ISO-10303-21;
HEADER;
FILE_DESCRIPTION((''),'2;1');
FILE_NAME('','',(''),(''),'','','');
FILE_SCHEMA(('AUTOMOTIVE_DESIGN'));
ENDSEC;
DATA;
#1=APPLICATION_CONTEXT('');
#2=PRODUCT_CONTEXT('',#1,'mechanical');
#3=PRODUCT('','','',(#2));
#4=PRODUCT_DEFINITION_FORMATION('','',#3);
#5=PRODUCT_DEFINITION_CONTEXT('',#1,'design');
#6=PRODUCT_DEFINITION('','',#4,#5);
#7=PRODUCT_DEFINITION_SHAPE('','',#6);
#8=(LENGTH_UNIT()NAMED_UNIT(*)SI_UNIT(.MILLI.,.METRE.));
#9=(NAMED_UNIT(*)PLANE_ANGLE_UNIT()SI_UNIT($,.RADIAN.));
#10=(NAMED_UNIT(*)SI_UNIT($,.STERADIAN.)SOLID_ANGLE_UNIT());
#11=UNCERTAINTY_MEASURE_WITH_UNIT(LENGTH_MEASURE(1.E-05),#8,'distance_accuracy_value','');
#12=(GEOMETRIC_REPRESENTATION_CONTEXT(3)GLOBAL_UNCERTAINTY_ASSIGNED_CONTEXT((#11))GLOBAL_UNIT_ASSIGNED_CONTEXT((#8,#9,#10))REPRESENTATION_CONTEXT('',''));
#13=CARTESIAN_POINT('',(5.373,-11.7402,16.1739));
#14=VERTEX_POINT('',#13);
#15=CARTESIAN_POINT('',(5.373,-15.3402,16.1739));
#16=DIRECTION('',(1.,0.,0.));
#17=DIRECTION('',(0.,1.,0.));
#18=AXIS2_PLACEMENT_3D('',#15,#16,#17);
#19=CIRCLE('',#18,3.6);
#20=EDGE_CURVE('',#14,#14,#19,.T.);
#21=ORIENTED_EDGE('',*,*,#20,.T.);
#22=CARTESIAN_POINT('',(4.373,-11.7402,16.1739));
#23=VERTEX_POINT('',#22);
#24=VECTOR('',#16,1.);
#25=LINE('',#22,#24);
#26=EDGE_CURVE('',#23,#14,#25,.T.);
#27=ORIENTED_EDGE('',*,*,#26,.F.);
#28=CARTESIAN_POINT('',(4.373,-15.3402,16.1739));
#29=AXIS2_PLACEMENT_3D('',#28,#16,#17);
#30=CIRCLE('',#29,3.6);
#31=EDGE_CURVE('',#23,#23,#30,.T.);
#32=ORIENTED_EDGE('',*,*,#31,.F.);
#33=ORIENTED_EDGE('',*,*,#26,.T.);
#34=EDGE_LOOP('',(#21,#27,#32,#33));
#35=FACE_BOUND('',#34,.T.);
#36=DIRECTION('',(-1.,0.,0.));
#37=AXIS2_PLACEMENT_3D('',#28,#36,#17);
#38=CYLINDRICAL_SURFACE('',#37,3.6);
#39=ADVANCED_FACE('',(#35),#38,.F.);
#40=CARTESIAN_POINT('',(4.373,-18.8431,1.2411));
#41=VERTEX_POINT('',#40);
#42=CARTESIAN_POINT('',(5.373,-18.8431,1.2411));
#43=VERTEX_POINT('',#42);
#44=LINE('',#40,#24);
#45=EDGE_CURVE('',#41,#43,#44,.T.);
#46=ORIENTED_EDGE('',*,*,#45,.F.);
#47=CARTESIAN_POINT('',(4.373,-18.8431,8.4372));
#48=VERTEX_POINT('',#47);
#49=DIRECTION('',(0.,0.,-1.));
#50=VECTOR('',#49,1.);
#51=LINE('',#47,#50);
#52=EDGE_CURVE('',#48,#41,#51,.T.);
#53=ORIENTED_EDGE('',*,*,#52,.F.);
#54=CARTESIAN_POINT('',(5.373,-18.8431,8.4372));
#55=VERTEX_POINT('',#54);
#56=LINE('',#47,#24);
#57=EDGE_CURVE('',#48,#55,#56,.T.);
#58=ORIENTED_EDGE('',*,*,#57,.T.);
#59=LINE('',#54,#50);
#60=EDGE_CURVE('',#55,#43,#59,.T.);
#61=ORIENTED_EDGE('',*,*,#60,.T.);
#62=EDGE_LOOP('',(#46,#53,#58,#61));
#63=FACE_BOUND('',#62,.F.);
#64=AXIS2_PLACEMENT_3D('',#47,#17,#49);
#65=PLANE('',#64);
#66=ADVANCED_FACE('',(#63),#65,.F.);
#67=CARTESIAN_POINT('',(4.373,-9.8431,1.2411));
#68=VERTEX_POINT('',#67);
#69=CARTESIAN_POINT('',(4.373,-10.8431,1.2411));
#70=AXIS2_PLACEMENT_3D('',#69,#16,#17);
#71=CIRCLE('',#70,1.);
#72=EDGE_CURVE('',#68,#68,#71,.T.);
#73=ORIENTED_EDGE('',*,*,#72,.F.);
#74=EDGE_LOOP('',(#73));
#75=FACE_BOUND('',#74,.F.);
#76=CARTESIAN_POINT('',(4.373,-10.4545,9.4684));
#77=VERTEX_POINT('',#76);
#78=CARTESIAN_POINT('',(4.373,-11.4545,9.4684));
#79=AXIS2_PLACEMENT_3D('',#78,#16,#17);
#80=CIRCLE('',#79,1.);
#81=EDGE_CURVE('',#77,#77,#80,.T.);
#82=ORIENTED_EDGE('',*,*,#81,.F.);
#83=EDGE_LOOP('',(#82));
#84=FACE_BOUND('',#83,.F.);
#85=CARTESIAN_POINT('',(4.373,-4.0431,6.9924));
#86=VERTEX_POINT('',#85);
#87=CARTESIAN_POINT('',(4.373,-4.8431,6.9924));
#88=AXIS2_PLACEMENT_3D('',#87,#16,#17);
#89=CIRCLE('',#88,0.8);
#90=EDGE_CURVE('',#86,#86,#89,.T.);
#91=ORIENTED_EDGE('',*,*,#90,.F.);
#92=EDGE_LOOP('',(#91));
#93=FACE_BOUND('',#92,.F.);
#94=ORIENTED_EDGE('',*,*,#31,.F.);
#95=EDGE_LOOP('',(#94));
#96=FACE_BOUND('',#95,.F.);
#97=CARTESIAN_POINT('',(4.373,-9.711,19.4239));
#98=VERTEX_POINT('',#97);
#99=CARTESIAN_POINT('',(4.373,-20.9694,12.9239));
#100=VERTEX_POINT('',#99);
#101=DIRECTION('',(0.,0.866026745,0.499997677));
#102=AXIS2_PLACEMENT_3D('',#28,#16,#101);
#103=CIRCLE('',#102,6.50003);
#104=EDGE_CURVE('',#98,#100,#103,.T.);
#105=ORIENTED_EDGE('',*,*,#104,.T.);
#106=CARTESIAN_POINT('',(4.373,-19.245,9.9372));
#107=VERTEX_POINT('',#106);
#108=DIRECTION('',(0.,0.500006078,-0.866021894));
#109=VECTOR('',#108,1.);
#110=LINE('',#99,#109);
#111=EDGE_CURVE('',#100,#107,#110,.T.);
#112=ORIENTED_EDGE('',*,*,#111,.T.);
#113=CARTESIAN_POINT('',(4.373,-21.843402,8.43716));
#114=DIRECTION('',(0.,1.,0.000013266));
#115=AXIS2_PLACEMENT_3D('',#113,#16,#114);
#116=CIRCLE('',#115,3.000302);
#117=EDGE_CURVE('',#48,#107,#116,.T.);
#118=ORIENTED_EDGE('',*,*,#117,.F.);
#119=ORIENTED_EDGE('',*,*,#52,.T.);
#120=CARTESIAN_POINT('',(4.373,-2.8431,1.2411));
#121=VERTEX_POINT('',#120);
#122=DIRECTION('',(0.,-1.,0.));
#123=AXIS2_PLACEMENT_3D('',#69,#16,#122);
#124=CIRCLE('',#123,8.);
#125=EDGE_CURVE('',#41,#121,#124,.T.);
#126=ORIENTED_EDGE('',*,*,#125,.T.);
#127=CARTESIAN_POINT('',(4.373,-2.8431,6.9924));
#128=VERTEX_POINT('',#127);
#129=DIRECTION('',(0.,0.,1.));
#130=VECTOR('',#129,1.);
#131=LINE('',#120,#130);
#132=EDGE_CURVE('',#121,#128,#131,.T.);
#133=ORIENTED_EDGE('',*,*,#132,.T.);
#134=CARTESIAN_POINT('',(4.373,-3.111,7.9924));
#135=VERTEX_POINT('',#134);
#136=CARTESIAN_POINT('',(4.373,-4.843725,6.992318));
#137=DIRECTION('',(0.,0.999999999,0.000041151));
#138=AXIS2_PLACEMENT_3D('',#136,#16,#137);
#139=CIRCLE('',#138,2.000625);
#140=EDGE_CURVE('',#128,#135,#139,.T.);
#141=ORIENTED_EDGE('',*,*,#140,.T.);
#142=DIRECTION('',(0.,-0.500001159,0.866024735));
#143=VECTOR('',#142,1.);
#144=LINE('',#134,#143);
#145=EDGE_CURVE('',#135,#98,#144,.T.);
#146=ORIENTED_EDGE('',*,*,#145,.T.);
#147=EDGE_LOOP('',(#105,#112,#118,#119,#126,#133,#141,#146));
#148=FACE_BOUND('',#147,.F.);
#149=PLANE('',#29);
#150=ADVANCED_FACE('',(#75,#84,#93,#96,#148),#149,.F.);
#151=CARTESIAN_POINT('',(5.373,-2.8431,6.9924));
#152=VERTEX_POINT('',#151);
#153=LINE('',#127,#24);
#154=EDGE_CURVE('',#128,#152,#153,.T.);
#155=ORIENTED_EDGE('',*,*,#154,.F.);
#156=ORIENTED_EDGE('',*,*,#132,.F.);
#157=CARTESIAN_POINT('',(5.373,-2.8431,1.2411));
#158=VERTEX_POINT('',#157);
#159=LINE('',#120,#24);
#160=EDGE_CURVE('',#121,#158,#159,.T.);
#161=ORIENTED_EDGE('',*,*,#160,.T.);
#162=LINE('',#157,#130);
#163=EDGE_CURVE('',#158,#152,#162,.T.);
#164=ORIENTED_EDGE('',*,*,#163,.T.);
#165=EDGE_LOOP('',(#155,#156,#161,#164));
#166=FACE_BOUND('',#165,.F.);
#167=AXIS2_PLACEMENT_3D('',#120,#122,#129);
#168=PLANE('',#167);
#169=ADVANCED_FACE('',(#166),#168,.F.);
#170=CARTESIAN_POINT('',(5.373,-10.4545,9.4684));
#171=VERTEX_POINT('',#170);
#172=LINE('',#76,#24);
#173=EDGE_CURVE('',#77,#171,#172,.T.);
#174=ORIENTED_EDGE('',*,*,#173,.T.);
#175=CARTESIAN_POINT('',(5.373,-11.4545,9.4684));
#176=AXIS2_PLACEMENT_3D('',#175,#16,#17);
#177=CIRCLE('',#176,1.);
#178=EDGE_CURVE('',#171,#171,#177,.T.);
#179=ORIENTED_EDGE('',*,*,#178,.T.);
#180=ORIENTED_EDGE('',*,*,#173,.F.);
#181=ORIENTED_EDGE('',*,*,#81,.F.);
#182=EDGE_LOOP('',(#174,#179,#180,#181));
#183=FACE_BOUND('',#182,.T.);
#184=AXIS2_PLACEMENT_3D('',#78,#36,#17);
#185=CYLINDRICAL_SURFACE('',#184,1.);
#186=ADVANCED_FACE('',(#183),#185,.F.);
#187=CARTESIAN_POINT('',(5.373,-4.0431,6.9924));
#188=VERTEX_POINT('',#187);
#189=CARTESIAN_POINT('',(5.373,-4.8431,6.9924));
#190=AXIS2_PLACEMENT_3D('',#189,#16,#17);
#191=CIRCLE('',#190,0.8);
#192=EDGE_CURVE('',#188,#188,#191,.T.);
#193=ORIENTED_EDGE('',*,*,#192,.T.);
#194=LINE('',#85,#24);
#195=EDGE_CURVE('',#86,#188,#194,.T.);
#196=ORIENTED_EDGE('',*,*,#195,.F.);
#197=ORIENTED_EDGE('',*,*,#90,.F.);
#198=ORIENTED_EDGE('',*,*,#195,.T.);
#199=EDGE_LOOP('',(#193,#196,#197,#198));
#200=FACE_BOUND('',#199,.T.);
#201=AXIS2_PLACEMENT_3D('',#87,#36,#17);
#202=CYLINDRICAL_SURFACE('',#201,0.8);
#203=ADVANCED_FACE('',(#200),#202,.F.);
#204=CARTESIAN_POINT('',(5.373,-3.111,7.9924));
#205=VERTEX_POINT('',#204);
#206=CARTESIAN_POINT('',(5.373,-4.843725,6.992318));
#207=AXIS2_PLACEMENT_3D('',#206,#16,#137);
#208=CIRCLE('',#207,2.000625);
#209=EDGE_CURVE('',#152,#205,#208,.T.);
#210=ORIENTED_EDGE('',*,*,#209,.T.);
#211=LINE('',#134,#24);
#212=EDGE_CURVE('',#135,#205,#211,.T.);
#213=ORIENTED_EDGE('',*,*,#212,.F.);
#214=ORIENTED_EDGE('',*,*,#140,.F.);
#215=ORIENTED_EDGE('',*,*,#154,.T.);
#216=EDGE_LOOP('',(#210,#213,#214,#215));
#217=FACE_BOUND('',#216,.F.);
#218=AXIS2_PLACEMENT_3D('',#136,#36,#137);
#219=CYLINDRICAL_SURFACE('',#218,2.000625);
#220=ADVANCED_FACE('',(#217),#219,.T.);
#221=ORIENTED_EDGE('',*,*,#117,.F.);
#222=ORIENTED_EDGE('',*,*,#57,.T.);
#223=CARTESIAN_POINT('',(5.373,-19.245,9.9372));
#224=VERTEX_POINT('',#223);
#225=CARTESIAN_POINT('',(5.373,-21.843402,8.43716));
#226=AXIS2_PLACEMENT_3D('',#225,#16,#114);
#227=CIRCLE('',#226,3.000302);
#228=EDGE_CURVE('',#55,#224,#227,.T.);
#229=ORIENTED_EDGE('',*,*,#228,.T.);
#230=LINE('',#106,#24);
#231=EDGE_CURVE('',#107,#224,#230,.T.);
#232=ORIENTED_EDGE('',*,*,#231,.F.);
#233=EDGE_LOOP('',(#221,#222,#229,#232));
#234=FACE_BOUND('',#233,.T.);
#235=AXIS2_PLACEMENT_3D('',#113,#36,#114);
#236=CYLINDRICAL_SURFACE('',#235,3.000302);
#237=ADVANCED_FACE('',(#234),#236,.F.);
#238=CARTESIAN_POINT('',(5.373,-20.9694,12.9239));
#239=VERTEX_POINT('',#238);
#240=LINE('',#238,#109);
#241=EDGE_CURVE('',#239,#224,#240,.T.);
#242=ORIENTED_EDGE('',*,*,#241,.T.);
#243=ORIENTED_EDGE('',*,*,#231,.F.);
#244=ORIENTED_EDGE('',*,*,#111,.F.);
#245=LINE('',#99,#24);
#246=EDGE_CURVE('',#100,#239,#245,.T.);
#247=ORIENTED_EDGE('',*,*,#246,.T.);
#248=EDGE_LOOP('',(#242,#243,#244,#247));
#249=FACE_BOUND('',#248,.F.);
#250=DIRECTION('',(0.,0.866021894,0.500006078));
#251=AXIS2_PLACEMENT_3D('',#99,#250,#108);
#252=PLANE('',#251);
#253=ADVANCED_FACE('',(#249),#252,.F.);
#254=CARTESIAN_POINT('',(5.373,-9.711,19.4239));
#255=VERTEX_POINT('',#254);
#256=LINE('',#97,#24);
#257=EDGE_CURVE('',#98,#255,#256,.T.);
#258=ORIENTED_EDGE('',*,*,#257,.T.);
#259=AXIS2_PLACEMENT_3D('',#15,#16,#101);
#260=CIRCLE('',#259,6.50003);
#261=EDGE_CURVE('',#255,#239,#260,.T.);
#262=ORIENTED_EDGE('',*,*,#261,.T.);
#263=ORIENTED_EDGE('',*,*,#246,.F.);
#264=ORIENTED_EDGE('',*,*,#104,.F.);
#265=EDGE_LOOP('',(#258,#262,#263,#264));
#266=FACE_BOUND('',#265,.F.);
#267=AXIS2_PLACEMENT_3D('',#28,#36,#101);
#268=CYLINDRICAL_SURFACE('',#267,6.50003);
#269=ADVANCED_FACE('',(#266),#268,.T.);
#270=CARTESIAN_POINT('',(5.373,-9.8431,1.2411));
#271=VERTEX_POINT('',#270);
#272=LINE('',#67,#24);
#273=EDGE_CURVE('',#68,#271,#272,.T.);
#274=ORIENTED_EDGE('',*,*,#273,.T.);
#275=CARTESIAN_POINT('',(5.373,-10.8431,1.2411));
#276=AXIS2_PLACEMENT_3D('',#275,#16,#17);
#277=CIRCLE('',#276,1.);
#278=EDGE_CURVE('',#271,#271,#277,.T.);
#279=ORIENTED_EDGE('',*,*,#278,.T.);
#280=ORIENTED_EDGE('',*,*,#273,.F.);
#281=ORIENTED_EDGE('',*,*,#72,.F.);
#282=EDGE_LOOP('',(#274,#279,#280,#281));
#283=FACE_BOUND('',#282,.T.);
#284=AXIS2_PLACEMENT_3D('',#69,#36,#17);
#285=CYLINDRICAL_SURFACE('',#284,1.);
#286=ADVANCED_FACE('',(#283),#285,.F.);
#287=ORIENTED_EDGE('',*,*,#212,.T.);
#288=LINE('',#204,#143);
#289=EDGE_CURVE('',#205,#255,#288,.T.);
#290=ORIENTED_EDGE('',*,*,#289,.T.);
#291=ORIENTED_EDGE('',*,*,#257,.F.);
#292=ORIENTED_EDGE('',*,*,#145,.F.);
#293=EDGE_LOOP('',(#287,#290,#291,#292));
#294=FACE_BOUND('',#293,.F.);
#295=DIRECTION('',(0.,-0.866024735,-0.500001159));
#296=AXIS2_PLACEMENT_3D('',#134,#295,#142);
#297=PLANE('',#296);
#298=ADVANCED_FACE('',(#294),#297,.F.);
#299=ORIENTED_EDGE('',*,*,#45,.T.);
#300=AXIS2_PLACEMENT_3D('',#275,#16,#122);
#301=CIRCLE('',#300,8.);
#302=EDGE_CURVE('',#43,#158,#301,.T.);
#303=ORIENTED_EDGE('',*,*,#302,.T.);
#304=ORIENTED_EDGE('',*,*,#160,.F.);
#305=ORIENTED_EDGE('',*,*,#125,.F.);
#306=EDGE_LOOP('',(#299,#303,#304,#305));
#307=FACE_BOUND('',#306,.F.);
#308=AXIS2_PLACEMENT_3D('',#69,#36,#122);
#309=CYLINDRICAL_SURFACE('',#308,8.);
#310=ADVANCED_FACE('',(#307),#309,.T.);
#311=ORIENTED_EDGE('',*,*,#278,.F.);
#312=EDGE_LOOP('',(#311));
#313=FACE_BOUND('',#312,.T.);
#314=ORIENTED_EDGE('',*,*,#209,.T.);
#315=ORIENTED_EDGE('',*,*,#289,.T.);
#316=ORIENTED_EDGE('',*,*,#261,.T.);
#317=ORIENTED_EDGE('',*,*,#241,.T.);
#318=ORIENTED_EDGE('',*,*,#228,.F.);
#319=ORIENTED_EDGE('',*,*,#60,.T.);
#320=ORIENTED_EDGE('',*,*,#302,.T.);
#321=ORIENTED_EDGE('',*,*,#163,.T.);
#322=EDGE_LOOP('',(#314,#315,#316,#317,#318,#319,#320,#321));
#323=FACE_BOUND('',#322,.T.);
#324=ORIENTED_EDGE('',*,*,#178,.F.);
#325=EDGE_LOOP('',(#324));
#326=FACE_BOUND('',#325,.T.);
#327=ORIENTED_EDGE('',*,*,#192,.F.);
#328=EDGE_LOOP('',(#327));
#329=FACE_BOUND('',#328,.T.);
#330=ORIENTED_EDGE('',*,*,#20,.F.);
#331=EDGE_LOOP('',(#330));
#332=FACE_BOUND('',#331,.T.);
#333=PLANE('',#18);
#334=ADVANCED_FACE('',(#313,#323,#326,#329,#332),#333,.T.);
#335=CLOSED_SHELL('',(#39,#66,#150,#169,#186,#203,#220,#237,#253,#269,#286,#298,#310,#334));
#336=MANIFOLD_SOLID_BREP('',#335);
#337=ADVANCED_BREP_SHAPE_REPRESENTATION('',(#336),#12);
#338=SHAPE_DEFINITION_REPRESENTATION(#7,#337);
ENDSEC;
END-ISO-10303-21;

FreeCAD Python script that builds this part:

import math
import FreeCAD as App
import Part
import Sketcher

V = App.Vector
Q = App.Units.Quantity

doc = App.newDocument("Part")
body = doc.addObject("PartDesign::Body", "Body")

# Sketch on YZ plane
sketch1 = doc.addObject("Sketcher::SketchObject", "Sketch")
body.addObject(sketch1)
sketch1.AttachmentSupport = (doc.YZ_Plane, [""])
sketch1.MapMode = "FlatFace"
sketch1.AttachmentOffset = App.Placement(V(0, 0, 4.373), App.Rotation())
sketch1.addGeometry([
    Part.LineSegment(V(-18.8, 8.4, 0), V(-18.8, 1.2, 0)),  # 0
    Part.ArcOfCircle(Part.Circle(V(-10.8, 1.2, 0), V(0, 0, 1), 8), math.radians(180), math.radians(360)),  # 1
    Part.LineSegment(V(-2.8, 1.2, 0), V(-2.8, 7, 0)),  # 2
    Part.ArcOfCircle(Part.Circle(V(-4.8, 7, 0), V(0, 0, 1), 2), math.radians(0), math.radians(30)),  # 3
    Part.LineSegment(V(-3.1, 8, 0), V(-9.7, 19.4, 0)),  # 4
    Part.ArcOfCircle(Part.Circle(V(-15.3, 16.2, 0), V(0, 0, 1), 6.5), math.radians(30), math.radians(210)),  # 5
    Part.LineSegment(V(-21, 12.9, 0), V(-19.2, 9.9, 0)),  # 6
    Part.ArcOfCircle(Part.Circle(V(-21.8, 8.4, 0), V(0, 0, 1), 3), math.radians(0), math.radians(30)),  # 7
    Part.Circle(V(-10.8, 1.2, 0), V(0, 0, 1), 1),  # 8
    Part.Circle(V(-4.8, 7, 0), V(0, 0, 1), 0.8),  # 9
    Part.Circle(V(-15.3, 16.2, 0), V(0, 0, 1), 3.6),  # 10
    Part.Circle(V(-11.5, 9.5, 0), V(0, 0, 1), 1),  # 11
], False)
sketch1.addConstraint([
    Sketcher.Constraint("Tangent", 0, 2, 1, 1),
    Sketcher.Constraint("Tangent", 1, 2, 2, 1),
    Sketcher.Constraint("Tangent", 2, 2, 3, 1),
    Sketcher.Constraint("Tangent", 3, 2, 4, 1),
    Sketcher.Constraint("Tangent", 4, 2, 5, 1),
    Sketcher.Constraint("Tangent", 5, 2, 6, 1),
    Sketcher.Constraint("Tangent", 6, 2, 7, 2),
    Sketcher.Constraint("Tangent", 7, 1, 0, 1),
    Sketcher.Constraint("Vertical", 0),
    Sketcher.Constraint("Vertical", 2),
    Sketcher.Constraint("Coincident", 8, 3, 1, 3),
    Sketcher.Constraint("Coincident", 9, 3, 3, 3),
    Sketcher.Constraint("Coincident", 10, 3, 5, 3),
    Sketcher.Constraint("Equal", 8, 11),
    Sketcher.Constraint("Parallel", 4, 6),
    Sketcher.Constraint("Diameter", 8, 2.0),
    Sketcher.Constraint("Radius", 1, 8.0),
    Sketcher.Constraint("Radius", 3, 2.0),
    Sketcher.Constraint("Radius", 7, 3.0),
    Sketcher.Constraint("Diameter", 9, 1.6),
    Sketcher.Constraint("Diameter", 10, 7.2),
    Sketcher.Constraint("Radius", 5, 6.5),
    Sketcher.Constraint("Angle", 4, Q("120 deg")),
    Sketcher.Constraint("Distance", 4, 13.2),
    Sketcher.Constraint("DistanceY", 0, 2, 0, 1, 7.196),
    Sketcher.Constraint("DistanceX", 1, 3, -1, 1, 10.843),
    Sketcher.Constraint("DistanceY", -1, 1, 1, 3, 1.241),
    Sketcher.Constraint("DistanceY", 3, 3, 11, 3, 2.476),
    Sketcher.Constraint("DistanceX", 5, 2, 11, 3, 9.515),
])
pad1 = doc.addObject("PartDesign::Pad", "Pad")
body.addObject(pad1)
pad1.Profile = sketch1
pad1.Length = 1

doc.recompute()
